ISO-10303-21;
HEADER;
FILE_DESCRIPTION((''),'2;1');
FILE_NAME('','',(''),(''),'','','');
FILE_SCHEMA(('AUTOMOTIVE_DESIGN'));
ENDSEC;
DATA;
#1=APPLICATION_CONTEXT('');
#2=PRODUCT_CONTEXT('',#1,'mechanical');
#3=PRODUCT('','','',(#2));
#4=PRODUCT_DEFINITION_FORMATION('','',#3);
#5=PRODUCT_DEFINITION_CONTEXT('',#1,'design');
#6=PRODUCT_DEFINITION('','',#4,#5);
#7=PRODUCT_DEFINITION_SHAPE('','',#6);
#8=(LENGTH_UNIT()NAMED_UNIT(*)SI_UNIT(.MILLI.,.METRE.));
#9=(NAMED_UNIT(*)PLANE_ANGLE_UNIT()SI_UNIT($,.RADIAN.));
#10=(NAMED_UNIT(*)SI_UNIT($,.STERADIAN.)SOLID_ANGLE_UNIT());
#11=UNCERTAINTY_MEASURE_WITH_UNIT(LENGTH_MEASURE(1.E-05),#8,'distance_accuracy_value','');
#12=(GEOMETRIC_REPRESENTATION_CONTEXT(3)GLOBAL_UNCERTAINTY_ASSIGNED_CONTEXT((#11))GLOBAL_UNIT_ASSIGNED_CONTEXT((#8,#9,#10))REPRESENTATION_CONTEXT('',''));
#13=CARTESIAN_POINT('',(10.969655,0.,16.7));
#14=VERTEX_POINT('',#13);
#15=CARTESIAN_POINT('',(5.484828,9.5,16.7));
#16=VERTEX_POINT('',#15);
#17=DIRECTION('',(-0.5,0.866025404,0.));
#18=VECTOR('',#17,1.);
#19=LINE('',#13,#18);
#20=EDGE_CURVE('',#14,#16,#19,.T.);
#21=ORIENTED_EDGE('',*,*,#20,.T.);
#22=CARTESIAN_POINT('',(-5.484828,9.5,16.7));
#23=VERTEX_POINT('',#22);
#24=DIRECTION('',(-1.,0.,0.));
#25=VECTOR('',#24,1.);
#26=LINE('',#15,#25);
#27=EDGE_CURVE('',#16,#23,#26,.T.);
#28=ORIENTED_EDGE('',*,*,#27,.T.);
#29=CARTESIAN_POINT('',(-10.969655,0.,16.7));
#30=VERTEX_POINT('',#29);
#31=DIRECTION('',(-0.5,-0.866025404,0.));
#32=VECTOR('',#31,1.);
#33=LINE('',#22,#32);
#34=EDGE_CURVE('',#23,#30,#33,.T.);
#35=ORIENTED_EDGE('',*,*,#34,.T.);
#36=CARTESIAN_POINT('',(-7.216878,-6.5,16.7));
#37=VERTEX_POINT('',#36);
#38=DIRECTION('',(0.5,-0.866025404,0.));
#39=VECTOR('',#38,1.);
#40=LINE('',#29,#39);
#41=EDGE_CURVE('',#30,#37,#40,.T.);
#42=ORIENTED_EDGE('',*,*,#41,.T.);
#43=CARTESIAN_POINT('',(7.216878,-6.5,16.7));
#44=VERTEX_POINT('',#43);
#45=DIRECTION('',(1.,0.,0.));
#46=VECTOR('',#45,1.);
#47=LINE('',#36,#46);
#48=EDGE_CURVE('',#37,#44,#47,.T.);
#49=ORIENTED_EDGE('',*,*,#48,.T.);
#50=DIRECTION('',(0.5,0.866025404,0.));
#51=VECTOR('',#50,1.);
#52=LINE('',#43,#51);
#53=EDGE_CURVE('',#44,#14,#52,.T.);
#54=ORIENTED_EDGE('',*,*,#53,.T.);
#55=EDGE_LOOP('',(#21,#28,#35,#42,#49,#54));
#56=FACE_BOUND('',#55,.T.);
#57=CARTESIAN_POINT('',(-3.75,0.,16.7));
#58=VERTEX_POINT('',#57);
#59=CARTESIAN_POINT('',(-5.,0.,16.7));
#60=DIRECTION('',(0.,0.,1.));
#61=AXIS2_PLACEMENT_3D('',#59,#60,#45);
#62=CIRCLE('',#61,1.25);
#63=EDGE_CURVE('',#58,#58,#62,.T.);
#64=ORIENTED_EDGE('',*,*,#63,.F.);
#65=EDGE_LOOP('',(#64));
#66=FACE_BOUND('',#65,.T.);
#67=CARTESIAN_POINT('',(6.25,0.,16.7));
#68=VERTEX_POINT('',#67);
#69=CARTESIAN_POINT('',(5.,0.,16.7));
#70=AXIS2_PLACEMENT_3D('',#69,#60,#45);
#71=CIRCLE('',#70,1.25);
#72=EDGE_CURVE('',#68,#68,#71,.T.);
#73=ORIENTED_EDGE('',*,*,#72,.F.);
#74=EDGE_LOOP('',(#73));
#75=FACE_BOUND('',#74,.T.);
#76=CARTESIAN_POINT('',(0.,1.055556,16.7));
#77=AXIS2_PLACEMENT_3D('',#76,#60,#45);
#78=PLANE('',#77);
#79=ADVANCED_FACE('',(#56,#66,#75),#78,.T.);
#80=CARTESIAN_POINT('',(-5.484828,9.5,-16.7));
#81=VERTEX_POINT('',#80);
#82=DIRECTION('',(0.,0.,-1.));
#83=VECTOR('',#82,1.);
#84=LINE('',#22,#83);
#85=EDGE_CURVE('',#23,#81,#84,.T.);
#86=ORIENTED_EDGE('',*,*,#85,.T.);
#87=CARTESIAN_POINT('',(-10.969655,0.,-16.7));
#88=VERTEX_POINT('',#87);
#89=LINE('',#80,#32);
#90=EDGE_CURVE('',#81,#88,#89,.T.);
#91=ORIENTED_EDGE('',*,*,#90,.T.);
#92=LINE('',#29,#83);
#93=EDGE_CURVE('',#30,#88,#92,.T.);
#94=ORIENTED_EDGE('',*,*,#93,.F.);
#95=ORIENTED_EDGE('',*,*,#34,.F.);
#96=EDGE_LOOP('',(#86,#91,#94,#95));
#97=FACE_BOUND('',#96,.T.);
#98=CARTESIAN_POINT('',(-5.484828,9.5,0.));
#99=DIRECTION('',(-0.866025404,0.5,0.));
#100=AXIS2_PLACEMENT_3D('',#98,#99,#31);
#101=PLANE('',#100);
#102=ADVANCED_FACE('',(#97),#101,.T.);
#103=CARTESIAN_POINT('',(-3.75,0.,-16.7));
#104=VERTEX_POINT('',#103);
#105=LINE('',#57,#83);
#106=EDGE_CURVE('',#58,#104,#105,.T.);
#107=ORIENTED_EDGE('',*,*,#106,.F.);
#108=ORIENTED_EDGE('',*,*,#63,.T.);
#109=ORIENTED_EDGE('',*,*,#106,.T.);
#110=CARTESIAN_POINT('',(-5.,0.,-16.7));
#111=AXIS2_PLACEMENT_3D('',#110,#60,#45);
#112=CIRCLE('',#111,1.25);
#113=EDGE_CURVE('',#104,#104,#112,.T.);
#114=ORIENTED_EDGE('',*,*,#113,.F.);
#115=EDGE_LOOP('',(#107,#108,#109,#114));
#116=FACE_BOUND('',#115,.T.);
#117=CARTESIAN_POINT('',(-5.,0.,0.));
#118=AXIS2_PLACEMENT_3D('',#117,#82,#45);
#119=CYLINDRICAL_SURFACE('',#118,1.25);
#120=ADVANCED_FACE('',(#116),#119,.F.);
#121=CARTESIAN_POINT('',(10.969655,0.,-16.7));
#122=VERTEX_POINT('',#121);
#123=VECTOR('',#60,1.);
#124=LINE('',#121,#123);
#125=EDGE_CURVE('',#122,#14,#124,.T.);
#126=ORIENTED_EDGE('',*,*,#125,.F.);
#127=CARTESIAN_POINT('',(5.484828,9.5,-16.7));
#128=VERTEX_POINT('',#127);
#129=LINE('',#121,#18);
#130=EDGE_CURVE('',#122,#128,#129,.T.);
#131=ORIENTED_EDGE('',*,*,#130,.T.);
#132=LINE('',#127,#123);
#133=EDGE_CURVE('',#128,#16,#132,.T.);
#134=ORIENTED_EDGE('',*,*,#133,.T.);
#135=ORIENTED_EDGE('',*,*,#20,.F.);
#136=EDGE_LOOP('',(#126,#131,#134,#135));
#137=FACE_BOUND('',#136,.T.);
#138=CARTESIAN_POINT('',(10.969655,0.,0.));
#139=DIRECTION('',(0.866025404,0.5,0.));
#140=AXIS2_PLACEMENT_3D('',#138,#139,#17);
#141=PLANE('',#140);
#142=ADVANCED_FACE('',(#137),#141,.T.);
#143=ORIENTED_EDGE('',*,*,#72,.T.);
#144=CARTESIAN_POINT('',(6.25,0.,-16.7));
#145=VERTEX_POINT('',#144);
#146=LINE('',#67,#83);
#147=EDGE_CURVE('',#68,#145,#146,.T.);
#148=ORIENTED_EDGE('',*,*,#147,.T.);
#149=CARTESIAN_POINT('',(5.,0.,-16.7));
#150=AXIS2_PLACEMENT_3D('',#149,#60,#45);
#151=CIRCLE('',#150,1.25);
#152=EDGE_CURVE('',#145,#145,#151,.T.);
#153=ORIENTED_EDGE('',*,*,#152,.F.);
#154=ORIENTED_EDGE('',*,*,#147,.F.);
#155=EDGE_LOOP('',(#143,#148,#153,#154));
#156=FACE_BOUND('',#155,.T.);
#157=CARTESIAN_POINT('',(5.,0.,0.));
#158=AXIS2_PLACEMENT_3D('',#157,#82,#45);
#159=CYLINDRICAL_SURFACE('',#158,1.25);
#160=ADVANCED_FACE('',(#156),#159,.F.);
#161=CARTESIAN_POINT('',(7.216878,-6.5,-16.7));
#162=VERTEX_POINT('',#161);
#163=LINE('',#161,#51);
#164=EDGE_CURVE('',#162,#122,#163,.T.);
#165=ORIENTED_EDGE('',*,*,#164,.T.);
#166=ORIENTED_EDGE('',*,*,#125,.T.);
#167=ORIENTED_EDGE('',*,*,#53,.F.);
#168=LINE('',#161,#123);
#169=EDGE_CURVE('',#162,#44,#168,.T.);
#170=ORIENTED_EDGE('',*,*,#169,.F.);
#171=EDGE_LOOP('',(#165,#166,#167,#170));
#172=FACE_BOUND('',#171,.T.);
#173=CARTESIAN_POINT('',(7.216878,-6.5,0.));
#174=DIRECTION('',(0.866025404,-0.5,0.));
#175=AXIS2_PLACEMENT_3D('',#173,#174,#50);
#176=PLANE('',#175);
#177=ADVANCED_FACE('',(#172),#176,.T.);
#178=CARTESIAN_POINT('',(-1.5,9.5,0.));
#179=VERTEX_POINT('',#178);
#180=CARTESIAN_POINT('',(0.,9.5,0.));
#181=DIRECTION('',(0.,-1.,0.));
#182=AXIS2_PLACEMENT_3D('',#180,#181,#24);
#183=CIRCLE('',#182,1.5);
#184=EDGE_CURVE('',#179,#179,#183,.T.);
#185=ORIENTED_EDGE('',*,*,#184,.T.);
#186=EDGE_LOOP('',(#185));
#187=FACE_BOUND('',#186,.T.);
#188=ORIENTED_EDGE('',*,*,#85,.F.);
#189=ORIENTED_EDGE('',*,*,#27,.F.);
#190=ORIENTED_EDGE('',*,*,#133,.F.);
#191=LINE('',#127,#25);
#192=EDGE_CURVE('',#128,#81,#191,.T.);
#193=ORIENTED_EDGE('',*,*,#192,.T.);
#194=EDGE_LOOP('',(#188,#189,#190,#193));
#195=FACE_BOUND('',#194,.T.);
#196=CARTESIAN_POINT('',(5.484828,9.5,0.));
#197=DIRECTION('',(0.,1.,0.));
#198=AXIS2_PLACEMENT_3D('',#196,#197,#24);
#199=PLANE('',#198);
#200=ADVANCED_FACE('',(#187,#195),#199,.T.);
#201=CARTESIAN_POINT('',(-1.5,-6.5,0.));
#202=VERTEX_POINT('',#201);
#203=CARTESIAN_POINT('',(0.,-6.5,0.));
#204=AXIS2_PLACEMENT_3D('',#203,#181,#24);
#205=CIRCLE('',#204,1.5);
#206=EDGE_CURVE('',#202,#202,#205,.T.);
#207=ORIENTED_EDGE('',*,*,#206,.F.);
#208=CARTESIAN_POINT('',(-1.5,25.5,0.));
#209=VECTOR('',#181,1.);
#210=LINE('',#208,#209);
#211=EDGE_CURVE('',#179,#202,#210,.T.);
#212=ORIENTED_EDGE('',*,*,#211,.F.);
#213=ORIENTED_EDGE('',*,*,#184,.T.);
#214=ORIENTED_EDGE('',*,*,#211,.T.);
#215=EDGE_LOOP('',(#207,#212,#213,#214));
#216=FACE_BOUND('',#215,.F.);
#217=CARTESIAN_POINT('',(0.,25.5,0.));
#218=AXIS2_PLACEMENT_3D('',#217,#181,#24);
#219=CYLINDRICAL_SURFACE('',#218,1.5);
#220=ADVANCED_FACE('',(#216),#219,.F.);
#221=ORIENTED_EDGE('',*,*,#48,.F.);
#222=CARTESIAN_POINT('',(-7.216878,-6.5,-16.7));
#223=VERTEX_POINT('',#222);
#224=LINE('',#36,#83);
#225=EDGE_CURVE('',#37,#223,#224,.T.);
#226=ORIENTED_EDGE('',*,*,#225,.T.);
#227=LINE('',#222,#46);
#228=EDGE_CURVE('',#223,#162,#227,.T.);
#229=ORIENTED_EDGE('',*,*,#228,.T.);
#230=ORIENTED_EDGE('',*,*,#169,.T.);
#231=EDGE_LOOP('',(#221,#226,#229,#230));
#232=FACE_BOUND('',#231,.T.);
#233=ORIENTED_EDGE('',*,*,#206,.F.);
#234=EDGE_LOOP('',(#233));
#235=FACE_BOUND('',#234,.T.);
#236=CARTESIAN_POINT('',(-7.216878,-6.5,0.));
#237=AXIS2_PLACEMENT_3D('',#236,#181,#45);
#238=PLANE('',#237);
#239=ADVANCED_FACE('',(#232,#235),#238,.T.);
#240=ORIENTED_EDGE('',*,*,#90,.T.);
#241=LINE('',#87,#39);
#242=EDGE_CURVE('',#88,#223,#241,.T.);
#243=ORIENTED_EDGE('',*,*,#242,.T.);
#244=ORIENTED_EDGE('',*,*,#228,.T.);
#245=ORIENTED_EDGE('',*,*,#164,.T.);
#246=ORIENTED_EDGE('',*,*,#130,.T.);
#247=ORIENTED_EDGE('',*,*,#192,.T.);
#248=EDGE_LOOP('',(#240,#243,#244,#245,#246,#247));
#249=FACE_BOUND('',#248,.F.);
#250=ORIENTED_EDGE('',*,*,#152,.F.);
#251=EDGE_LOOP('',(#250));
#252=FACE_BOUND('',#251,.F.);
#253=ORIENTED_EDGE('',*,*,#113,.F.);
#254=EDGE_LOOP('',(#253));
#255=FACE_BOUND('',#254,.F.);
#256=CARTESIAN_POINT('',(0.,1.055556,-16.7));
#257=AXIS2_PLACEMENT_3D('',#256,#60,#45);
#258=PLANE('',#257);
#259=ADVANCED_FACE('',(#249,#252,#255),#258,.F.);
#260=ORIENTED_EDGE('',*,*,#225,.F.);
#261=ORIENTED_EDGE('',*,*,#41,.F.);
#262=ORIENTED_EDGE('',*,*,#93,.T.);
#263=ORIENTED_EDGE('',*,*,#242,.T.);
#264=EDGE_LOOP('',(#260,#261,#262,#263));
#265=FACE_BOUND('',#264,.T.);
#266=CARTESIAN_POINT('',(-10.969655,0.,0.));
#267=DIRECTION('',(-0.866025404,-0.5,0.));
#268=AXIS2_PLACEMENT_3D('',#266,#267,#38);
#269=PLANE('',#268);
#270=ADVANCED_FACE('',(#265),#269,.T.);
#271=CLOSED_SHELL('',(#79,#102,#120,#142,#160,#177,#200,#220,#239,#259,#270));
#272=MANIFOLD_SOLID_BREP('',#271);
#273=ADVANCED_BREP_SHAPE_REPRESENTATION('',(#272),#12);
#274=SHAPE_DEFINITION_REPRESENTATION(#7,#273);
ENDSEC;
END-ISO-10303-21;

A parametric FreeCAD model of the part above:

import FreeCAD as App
import Part
import Sketcher
Q = App.Units.Quantity


def add_polygon(sketch, points):
    """Adds a closed chain of lines whose ends are joined by coincident constraints."""
    first, n = sketch.GeometryCount, len(points)
    for a, b in zip(points, points[1:] + points[:1]):
        sketch.addGeometry(Part.LineSegment(App.Vector(*a, 0), App.Vector(*b, 0)), False)
    for i in range(n):
        sketch.addConstraint(Sketcher.Constraint("Coincident", first + i, 2, first + (i + 1) % n, 1))

doc = App.newDocument("Part")
params = doc.addObject("Spreadsheet::Sheet", "Params")
for row, (alias, value) in enumerate([
    ("sketch1_diameter", "2.5 mm"),
    ("pad1_length", "33.4 mm"),
    ("sketch2_diameter", "3 mm"),
    ("hole_diameter", "3 mm"),
    ("hole_depth", "16 mm"),
], start=1):
    params.set(f"A{row}", alias)
    params.set(f"B{row}", "=" + value)
    params.setAlias(f"B{row}", alias)

body = doc.addObject("PartDesign::Body", "Body")

# Sketch on XY plane
sketch1 = doc.addObject("Sketcher::SketchObject", "Sketch")
body.addObject(sketch1)
sketch1.AttachmentSupport = (doc.XY_Plane, [""])
sketch1.MapMode = "FlatFace"
add_polygon(sketch1, [(-7.2, -6.5), (7.2, -6.5), (11, 0), (5.5, 9.5), (-5.5, 9.5), (-11, 0)])  # lines 0-5
sketch1.addGeometry(Part.Circle(App.Vector(-5, 0, 0), App.Vector(0, 0, 1), 1.2), False)  # 6
sketch1.addGeometry(Part.Circle(App.Vector(5, 0, 0), App.Vector(0, 0, 1), 1.2), False)  # 7
sketch1.addConstraint([
    Sketcher.Constraint("Horizontal", 0),
    Sketcher.Constraint("Horizontal", 3),
    Sketcher.Constraint("Equal", 6, 7),
    Sketcher.Constraint("Symmetric", 6, 3, 7, 3, -1, 1),
    Sketcher.Constraint("Symmetric", 1, 2, 4, 2, -1, 1),
    Sketcher.Constraint("PointOnObject", 6, 3, -1),
    Sketcher.Constraint("PointOnObject", 1, 2, -1),
    Sketcher.Constraint("Parallel", 1, 4),
    Sketcher.Constraint("Parallel", 2, 5),
    Sketcher.Constraint("Equal", 2, 4),
    Sketcher.Constraint("Diameter", 6, Q("2.5 mm")),
    Sketcher.Constraint("Angle", 1, Q("60 deg")),
    Sketcher.Constraint("DistanceX", 6, 3, -1, 1, Q("5 mm")),
    Sketcher.Constraint("DistanceY", 0, 2, 2, 2, Q("16 mm")),
    Sketcher.Constraint("DistanceY", 0, 2, -1, 1, Q("6.5 mm")),
    Sketcher.Constraint("DistanceX", 0, 1, 0, 2, Q("14.433757 mm")),
])
sketch1.setExpression("Constraints[16]", "Params.sketch1_diameter")
pad1 = doc.addObject("PartDesign::Pad", "Pad")
body.addObject(pad1)
pad1.Profile = sketch1
pad1.setExpression("Length", "Params.pad1_length")
pad1.Midplane = True

# Sketch on XZ plane
sketch2 = doc.addObject("Sketcher::SketchObject", "Sketch001")
body.addObject(sketch2)
sketch2.AttachmentSupport = (doc.XZ_Plane, [""])
sketch2.MapMode = "FlatFace"
sketch2.AttachmentOffset = App.Placement(App.Vector(0, 0, -9.5), App.Rotation())
sketch2.addGeometry(Part.Circle(App.Vector(0, 0, 0), App.Vector(0, 0, 1), 1.5), False)
sketch2.addConstraint([
    Sketcher.Constraint("Coincident", 0, 3, -1, 1),
    Sketcher.Constraint("Diameter", 0, Q("3 mm")),
])
sketch2.setExpression("Constraints[1]", "Params.sketch2_diameter")
doc.recompute()
hole = doc.addObject("PartDesign::Hole", "Hole")
body.addObject(hole)
hole.Profile = sketch2
hole.ThreadType = "None"
hole.setExpression("Diameter", "Params.hole_diameter")
hole.DepthType = "Dimension"
hole.setExpression("Depth", "Params.hole_depth")
hole.DrillPoint = "Flat"
hole.Reversed = True

doc.recompute()
